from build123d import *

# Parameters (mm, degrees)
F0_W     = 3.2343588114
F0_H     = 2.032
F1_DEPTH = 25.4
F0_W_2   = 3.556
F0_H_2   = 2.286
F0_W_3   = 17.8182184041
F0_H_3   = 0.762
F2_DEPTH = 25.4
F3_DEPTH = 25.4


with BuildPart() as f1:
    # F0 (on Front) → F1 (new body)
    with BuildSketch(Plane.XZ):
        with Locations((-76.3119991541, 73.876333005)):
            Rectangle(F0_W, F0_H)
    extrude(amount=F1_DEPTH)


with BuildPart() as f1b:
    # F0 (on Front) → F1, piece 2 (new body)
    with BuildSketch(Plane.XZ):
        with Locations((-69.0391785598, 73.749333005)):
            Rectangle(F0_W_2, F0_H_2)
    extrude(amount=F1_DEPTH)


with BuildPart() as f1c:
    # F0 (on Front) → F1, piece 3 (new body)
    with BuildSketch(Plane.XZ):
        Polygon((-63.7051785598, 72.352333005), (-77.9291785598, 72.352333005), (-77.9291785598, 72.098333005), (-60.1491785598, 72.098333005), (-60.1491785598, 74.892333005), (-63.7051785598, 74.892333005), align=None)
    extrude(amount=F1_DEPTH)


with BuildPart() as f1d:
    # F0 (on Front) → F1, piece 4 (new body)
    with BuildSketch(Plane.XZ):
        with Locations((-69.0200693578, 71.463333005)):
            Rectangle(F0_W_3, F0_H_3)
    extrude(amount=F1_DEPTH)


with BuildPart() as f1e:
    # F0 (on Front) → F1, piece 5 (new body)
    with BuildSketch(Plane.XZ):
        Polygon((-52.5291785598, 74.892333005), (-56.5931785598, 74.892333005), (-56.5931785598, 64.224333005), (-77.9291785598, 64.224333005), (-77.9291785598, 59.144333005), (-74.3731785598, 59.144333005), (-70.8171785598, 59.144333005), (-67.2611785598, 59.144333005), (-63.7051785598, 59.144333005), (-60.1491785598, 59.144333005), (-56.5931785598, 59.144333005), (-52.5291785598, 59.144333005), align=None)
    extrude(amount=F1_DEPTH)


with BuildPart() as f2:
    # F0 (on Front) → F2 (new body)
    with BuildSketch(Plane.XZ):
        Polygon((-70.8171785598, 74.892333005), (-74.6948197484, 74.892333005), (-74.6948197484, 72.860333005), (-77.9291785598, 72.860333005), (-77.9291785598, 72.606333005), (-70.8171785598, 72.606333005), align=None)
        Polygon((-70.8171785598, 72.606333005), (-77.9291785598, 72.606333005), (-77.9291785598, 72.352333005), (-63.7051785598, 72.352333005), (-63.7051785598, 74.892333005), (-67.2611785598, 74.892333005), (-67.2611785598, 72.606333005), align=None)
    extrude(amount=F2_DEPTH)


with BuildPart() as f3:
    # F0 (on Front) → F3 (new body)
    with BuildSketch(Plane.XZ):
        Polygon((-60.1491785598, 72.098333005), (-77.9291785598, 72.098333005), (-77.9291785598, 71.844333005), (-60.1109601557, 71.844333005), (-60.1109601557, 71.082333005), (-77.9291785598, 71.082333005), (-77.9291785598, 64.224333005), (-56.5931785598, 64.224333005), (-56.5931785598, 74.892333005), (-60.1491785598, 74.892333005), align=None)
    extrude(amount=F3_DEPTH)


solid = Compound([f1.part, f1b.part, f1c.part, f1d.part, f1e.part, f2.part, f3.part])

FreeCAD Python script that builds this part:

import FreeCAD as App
import Part
import Sketcher
Q = App.Units.Quantity


def add_polygon(sketch, points):
    """Adds a closed chain of lines whose ends are joined by coincident constraints."""
    first, n = sketch.GeometryCount, len(points)
    for a, b in zip(points, points[1:] + points[:1]):
        sketch.addGeometry(Part.LineSegment(App.Vector(*a, 0), App.Vector(*b, 0)), False)
    for i in range(n):
        sketch.addConstraint(Sketcher.Constraint("Coincident", first + i, 2, first + (i + 1) % n, 1))

doc = App.newDocument("Part")
body = doc.addObject("PartDesign::Body", "Body")

# Sketch on XZ plane
sketch1 = body.newObject("Sketcher::SketchObject", "Sketch")
sketch1.AttachmentSupport = (doc.getObject("XZ_Plane"), [""])
sketch1.MapMode = "FlatFace"
add_polygon(sketch1, [(-77.9, 74.9), (-77.9, 72.9), (-74.7, 72.9), (-74.7, 74.9)])  # lines 0-3
sketch1.addConstraint(Sketcher.Constraint("Vertical", 0))
sketch1.addConstraint(Sketcher.Constraint("Horizontal", 1))
sketch1.addConstraint(Sketcher.Constraint("Vertical", 2))
sketch1.addConstraint(Sketcher.Constraint("Horizontal", 3))
sketch1.addConstraint(Sketcher.Constraint("DistanceY", 0, 2, 0, 1, Q("0.08 in")))
sketch1.addConstraint(Sketcher.Constraint("DistanceX", 1, 1, 1, 2, Q("3.234359 mm")))
sketch1.addConstraint(Sketcher.Constraint("DistanceX", 0, 2, -1, 1, Q("77.929179 mm")))
sketch1.addConstraint(Sketcher.Constraint("DistanceY", -1, 1, 0, 2, Q("72.860333 mm")))
pad1 = body.newObject("PartDesign::Pad", "Pad")
pad1.Profile = sketch1
pad1.Length = Q("1 in")
body2 = doc.addObject("PartDesign::Body", "Body001")

# Sketch on XZ plane
sketch2 = body2.newObject("Sketcher::SketchObject", "Sketch001")
sketch2.AttachmentSupport = (doc.getObject("XZ_Plane001"), [""])
sketch2.MapMode = "FlatFace"
add_polygon(sketch2, [(-70.8, 74.9), (-70.8, 72.6), (-67.3, 72.6), (-67.3, 74.9)])  # lines 0-3
sketch2.addConstraint(Sketcher.Constraint("Vertical", 0))
sketch2.addConstraint(Sketcher.Constraint("Horizontal", 1))
sketch2.addConstraint(Sketcher.Constraint("Vertical", 2))
sketch2.addConstraint(Sketcher.Constraint("Horizontal", 3))
sketch2.addConstraint(Sketcher.Constraint("DistanceX", 1, 1, 1, 2, Q("0.14 in")))
sketch2.addConstraint(Sketcher.Constraint("DistanceY", 0, 2, 0, 1, Q("0.09 in")))
sketch2.addConstraint(Sketcher.Constraint("DistanceX", 0, 2, -1, 1, Q("70.817179 mm")))
sketch2.addConstraint(Sketcher.Constraint("DistanceY", -1, 1, 0, 2, Q("72.606333 mm")))
pad2 = body2.newObject("PartDesign::Pad", "Pad001")
pad2.Profile = sketch2
pad2.Length = Q("1 in")
body3 = doc.addObject("PartDesign::Body", "Body002")

# Sketch on XZ plane
sketch3 = body3.newObject("Sketcher::SketchObject", "Sketch002")
sketch3.AttachmentSupport = (doc.getObject("XZ_Plane002"), [""])
sketch3.MapMode = "FlatFace"
add_polygon(sketch3, [(-63.71, 72.35), (-77.93, 72.35), (-77.93, 72.1), (-60.15, 72.1), (-60.15, 74.89), (-63.71, 74.89)])  # lines 0-5
sketch3.addConstraint(Sketcher.Constraint("Horizontal", 0))
sketch3.addConstraint(Sketcher.Constraint("Vertical", 1))
sketch3.addConstraint(Sketcher.Constraint("Horizontal", 2))
sketch3.addConstraint(Sketcher.Constraint("Vertical", 3))
sketch3.addConstraint(Sketcher.Constraint("Horizontal", 4))
sketch3.addConstraint(Sketcher.Constraint("Vertical", 5))
sketch3.addConstraint(Sketcher.Constraint("DistanceX", 2, 1, 2, 2, Q("0.7 in")))
sketch3.addConstraint(Sketcher.Constraint("DistanceY", 5, 2, 5, 1, Q("0.1 in")))
sketch3.addConstraint(Sketcher.Constraint("DistanceX", 0, 2, 0, 1, Q("0.56 in")))
sketch3.addConstraint(Sketcher.Constraint("DistanceY", 1, 2, 1, 1, Q("0.01 in")))
sketch3.addConstraint(Sketcher.Constraint("DistanceX", 0, 2, -1, 1, Q("77.929179 mm")))
sketch3.addConstraint(Sketcher.Constraint("DistanceY", -1, 1, 0, 2, Q("72.352333 mm")))
pad3 = body3.newObject("PartDesign::Pad", "Pad002")
pad3.Profile = sketch3
pad3.Length = Q("1 in")
body4 = doc.addObject("PartDesign::Body", "Body003")

# Sketch on XZ plane
sketch4 = body4.newObject("Sketcher::SketchObject", "Sketch003")
sketch4.AttachmentSupport = (doc.getObject("XZ_Plane003"), [""])
sketch4.MapMode = "FlatFace"
add_polygon(sketch4, [(-77.9, 71.8), (-77.9, 71.1), (-60.1, 71.1), (-60.1, 71.8)])  # lines 0-3
sketch4.addConstraint(Sketcher.Constraint("Vertical", 0))
sketch4.addConstraint(Sketcher.Constraint("Horizontal", 1))
sketch4.addConstraint(Sketcher.Constraint("Vertical", 2))
sketch4.addConstraint(Sketcher.Constraint("Horizontal", 3))
sketch4.addConstraint(Sketcher.Constraint("DistanceY", 0, 2, 0, 1, Q("0.03 in")))
sketch4.addConstraint(Sketcher.Constraint("DistanceX", 1, 1, 1, 2, Q("17.818218 mm")))
sketch4.addConstraint(Sketcher.Constraint("DistanceX", 0, 2, -1, 1, Q("77.929179 mm")))
sketch4.addConstraint(Sketcher.Constraint("DistanceY", -1, 1, 0, 2, Q("71.082333 mm")))
pad4 = body4.newObject("PartDesign::Pad", "Pad003")
pad4.Profile = sketch4
pad4.Length = Q("1 in")
body5 = doc.addObject("PartDesign::Body", "Body004")

# Sketch on XZ plane
sketch5 = body5.newObject("Sketcher::SketchObject", "Sketch004")
sketch5.AttachmentSupport = (doc.getObject("XZ_Plane004"), [""])
sketch5.MapMode = "FlatFace"
add_polygon(sketch5, [(-52.5, 74.9), (-56.6, 74.9), (-56.6, 64.2), (-77.9, 64.2), (-77.9, 59.1), (-52.5, 59.1)])  # lines 0-5
sketch5.addConstraint(Sketcher.Constraint("Horizontal", 0))
sketch5.addConstraint(Sketcher.Constraint("Vertical", 1))
sketch5.addConstraint(Sketcher.Constraint("Horizontal", 2))
sketch5.addConstraint(Sketcher.Constraint("Vertical", 3))
sketch5.addConstraint(Sketcher.Constraint("Horizontal", 4))
sketch5.addConstraint(Sketcher.Constraint("Vertical", 5))
sketch5.addConstraint(Sketcher.Constraint("DistanceX", 4, 1, 4, 2, Q("1 in")))
sketch5.addConstraint(Sketcher.Constraint("DistanceY", 3, 2, 3, 1, Q("0.2 in")))
sketch5.addConstraint(Sketcher.Constraint("DistanceX", 0, 2, 0, 1, Q("0.16 in")))
sketch5.addConstraint(Sketcher.Constraint("DistanceY", 1, 2, 1, 1, Q("0.42 in")))
sketch5.addConstraint(Sketcher.Constraint("DistanceX", 0, 2, -1, 1, Q("56.593179 mm")))
sketch5.addConstraint(Sketcher.Constraint("DistanceY", -1, 1, 0, 2, Q("74.892333 mm")))
pad5 = body5.newObject("PartDesign::Pad", "Pad004")
pad5.Profile = sketch5
pad5.Length = Q("1 in")
body6 = doc.addObject("PartDesign::Body", "Body005")

# Sketch on XZ plane
sketch6 = body6.newObject("Sketcher::SketchObject", "Sketch005")
sketch6.AttachmentSupport = (doc.getObject("XZ_Plane005"), [""])
sketch6.MapMode = "FlatFace"
add_polygon(sketch6, [(-70.8, 74.9), (-74.7, 74.9), (-74.7, 72.9), (-77.9, 72.9), (-77.9, 72.4), (-63.7, 72.4), (-63.7, 74.9), (-67.3, 74.9), (-67.3, 72.6), (-70.8, 72.6)])  # lines 0-9
sketch6.addConstraint(Sketcher.Constraint("Horizontal", 0))
sketch6.addConstraint(Sketcher.Constraint("Vertical", 1))
sketch6.addConstraint(Sketcher.Constraint("Horizontal", 2))
sketch6.addConstraint(Sketcher.Constraint("Vertical", 3))
sketch6.addConstraint(Sketcher.Constraint("Horizontal", 4))
sketch6.addConstraint(Sketcher.Constraint("Vertical", 5))
sketch6.addConstraint(Sketcher.Constraint("Horizontal", 6))
sketch6.addConstraint(Sketcher.Constraint("Vertical", 7))
sketch6.addConstraint(Sketcher.Constraint("Horizontal", 8))
sketch6.addConstraint(Sketcher.Constraint("Vertical", 9))
sketch6.addConstraint(Sketcher.Constraint("Horizontal", 0, 2, 5, 2))
sketch6.addConstraint(Sketcher.Constraint("Equal", 6, 8))
sketch6.addConstraint(Sketcher.Constraint("DistanceY", 5, 1, 5, 2, Q("0.1 in")))
sketch6.addConstraint(Sketcher.Constraint("DistanceX", 4, 1, 4, 2, Q("0.56 in")))
sketch6.addConstraint(Sketcher.Constraint("DistanceX", 6, 2, 6, 1, Q("0.14 in")))
sketch6.addConstraint(Sketcher.Constraint("DistanceY", 1, 2, 1, 1, Q("0.08 in")))
sketch6.addConstraint(Sketcher.Constraint("DistanceY", 7, 2, 7, 1, Q("0.09 in")))
sketch6.addConstraint(Sketcher.Constraint("DistanceX", 0, 2, 0, 1, Q("3.877641 mm")))
sketch6.addConstraint(Sketcher.Constraint("DistanceX", 0, 2, -1, 1, Q("74.69482 mm")))
sketch6.addConstraint(Sketcher.Constraint("DistanceY", -1, 1, 0, 2, Q("74.892333 mm")))
pad6 = body6.newObject("PartDesign::Pad", "Pad005")
pad6.Profile = sketch6
pad6.Length = Q("1 in")
body7 = doc.addObject("PartDesign::Body", "Body006")

# Sketch on XZ plane
sketch7 = body7.newObject("Sketcher::SketchObject", "Sketch006")
sketch7.AttachmentSupport = (doc.getObject("XZ_Plane006"), [""])
sketch7.MapMode = "FlatFace"
add_polygon(sketch7, [(-60.15, 72.1), (-77.93, 72.1), (-77.93, 71.84), (-60.11, 71.84), (-60.11, 71.08), (-77.93, 71.08), (-77.93, 64.22), (-56.59, 64.22), (-56.59, 74.89), (-60.15, 74.89)])  # lines 0-9
sketch7.addConstraint(Sketcher.Constraint("Horizontal", 0))
sketch7.addConstraint(Sketcher.Constraint("Vertical", 1))
sketch7.addConstraint(Sketcher.Constraint("Horizontal", 2))
sketch7.addConstraint(Sketcher.Constraint("Vertical", 3))
sketch7.addConstraint(Sketcher.Constraint("Horizontal", 4))
sketch7.addConstraint(Sketcher.Constraint("Vertical", 5))
sketch7.addConstraint(Sketcher.Constraint("Horizontal", 6))
sketch7.addConstraint(Sketcher.Constraint("Vertical", 7))
sketch7.addConstraint(Sketcher.Constraint("Horizontal", 8))
sketch7.addConstraint(Sketcher.Constraint("Vertical", 9))
sketch7.addConstraint(Sketcher.Constraint("Vertical", 1, 2, 4, 2))
sketch7.addConstraint(Sketcher.Constraint("DistanceX", 0, 2, 0, 1, Q("0.7 in")))
sketch7.addConstraint(Sketcher.Constraint("DistanceX", 6, 1, 6, 2, Q("0.84 in")))
sketch7.addConstraint(Sketcher.Constraint("DistanceY", 1, 2, 1, 1, Q("0.01 in")))
sketch7.addConstraint(Sketcher.Constraint("DistanceY", 3, 2, 3, 1, Q("0.03 in")))
sketch7.addConstraint(Sketcher.Constraint("DistanceY", 5, 2, 5, 1, Q("0.27 in")))
sketch7.addConstraint(Sketcher.Constraint("DistanceY", 7, 1, 7, 2, Q("0.42 in")))
sketch7.addConstraint(Sketcher.Constraint("DistanceX", 2, 1, 2, 2, Q("17.818218 mm")))
sketch7.addConstraint(Sketcher.Constraint("DistanceX", 0, 2, -1, 1, Q("77.929179 mm")))
sketch7.addConstraint(Sketcher.Constraint("DistanceY", -1, 1, 0, 2, Q("72.098333 mm")))
pad7 = body7.newObject("PartDesign::Pad", "Pad006")
pad7.Profile = sketch7
pad7.Length = Q("1 in")

doc.recompute()
